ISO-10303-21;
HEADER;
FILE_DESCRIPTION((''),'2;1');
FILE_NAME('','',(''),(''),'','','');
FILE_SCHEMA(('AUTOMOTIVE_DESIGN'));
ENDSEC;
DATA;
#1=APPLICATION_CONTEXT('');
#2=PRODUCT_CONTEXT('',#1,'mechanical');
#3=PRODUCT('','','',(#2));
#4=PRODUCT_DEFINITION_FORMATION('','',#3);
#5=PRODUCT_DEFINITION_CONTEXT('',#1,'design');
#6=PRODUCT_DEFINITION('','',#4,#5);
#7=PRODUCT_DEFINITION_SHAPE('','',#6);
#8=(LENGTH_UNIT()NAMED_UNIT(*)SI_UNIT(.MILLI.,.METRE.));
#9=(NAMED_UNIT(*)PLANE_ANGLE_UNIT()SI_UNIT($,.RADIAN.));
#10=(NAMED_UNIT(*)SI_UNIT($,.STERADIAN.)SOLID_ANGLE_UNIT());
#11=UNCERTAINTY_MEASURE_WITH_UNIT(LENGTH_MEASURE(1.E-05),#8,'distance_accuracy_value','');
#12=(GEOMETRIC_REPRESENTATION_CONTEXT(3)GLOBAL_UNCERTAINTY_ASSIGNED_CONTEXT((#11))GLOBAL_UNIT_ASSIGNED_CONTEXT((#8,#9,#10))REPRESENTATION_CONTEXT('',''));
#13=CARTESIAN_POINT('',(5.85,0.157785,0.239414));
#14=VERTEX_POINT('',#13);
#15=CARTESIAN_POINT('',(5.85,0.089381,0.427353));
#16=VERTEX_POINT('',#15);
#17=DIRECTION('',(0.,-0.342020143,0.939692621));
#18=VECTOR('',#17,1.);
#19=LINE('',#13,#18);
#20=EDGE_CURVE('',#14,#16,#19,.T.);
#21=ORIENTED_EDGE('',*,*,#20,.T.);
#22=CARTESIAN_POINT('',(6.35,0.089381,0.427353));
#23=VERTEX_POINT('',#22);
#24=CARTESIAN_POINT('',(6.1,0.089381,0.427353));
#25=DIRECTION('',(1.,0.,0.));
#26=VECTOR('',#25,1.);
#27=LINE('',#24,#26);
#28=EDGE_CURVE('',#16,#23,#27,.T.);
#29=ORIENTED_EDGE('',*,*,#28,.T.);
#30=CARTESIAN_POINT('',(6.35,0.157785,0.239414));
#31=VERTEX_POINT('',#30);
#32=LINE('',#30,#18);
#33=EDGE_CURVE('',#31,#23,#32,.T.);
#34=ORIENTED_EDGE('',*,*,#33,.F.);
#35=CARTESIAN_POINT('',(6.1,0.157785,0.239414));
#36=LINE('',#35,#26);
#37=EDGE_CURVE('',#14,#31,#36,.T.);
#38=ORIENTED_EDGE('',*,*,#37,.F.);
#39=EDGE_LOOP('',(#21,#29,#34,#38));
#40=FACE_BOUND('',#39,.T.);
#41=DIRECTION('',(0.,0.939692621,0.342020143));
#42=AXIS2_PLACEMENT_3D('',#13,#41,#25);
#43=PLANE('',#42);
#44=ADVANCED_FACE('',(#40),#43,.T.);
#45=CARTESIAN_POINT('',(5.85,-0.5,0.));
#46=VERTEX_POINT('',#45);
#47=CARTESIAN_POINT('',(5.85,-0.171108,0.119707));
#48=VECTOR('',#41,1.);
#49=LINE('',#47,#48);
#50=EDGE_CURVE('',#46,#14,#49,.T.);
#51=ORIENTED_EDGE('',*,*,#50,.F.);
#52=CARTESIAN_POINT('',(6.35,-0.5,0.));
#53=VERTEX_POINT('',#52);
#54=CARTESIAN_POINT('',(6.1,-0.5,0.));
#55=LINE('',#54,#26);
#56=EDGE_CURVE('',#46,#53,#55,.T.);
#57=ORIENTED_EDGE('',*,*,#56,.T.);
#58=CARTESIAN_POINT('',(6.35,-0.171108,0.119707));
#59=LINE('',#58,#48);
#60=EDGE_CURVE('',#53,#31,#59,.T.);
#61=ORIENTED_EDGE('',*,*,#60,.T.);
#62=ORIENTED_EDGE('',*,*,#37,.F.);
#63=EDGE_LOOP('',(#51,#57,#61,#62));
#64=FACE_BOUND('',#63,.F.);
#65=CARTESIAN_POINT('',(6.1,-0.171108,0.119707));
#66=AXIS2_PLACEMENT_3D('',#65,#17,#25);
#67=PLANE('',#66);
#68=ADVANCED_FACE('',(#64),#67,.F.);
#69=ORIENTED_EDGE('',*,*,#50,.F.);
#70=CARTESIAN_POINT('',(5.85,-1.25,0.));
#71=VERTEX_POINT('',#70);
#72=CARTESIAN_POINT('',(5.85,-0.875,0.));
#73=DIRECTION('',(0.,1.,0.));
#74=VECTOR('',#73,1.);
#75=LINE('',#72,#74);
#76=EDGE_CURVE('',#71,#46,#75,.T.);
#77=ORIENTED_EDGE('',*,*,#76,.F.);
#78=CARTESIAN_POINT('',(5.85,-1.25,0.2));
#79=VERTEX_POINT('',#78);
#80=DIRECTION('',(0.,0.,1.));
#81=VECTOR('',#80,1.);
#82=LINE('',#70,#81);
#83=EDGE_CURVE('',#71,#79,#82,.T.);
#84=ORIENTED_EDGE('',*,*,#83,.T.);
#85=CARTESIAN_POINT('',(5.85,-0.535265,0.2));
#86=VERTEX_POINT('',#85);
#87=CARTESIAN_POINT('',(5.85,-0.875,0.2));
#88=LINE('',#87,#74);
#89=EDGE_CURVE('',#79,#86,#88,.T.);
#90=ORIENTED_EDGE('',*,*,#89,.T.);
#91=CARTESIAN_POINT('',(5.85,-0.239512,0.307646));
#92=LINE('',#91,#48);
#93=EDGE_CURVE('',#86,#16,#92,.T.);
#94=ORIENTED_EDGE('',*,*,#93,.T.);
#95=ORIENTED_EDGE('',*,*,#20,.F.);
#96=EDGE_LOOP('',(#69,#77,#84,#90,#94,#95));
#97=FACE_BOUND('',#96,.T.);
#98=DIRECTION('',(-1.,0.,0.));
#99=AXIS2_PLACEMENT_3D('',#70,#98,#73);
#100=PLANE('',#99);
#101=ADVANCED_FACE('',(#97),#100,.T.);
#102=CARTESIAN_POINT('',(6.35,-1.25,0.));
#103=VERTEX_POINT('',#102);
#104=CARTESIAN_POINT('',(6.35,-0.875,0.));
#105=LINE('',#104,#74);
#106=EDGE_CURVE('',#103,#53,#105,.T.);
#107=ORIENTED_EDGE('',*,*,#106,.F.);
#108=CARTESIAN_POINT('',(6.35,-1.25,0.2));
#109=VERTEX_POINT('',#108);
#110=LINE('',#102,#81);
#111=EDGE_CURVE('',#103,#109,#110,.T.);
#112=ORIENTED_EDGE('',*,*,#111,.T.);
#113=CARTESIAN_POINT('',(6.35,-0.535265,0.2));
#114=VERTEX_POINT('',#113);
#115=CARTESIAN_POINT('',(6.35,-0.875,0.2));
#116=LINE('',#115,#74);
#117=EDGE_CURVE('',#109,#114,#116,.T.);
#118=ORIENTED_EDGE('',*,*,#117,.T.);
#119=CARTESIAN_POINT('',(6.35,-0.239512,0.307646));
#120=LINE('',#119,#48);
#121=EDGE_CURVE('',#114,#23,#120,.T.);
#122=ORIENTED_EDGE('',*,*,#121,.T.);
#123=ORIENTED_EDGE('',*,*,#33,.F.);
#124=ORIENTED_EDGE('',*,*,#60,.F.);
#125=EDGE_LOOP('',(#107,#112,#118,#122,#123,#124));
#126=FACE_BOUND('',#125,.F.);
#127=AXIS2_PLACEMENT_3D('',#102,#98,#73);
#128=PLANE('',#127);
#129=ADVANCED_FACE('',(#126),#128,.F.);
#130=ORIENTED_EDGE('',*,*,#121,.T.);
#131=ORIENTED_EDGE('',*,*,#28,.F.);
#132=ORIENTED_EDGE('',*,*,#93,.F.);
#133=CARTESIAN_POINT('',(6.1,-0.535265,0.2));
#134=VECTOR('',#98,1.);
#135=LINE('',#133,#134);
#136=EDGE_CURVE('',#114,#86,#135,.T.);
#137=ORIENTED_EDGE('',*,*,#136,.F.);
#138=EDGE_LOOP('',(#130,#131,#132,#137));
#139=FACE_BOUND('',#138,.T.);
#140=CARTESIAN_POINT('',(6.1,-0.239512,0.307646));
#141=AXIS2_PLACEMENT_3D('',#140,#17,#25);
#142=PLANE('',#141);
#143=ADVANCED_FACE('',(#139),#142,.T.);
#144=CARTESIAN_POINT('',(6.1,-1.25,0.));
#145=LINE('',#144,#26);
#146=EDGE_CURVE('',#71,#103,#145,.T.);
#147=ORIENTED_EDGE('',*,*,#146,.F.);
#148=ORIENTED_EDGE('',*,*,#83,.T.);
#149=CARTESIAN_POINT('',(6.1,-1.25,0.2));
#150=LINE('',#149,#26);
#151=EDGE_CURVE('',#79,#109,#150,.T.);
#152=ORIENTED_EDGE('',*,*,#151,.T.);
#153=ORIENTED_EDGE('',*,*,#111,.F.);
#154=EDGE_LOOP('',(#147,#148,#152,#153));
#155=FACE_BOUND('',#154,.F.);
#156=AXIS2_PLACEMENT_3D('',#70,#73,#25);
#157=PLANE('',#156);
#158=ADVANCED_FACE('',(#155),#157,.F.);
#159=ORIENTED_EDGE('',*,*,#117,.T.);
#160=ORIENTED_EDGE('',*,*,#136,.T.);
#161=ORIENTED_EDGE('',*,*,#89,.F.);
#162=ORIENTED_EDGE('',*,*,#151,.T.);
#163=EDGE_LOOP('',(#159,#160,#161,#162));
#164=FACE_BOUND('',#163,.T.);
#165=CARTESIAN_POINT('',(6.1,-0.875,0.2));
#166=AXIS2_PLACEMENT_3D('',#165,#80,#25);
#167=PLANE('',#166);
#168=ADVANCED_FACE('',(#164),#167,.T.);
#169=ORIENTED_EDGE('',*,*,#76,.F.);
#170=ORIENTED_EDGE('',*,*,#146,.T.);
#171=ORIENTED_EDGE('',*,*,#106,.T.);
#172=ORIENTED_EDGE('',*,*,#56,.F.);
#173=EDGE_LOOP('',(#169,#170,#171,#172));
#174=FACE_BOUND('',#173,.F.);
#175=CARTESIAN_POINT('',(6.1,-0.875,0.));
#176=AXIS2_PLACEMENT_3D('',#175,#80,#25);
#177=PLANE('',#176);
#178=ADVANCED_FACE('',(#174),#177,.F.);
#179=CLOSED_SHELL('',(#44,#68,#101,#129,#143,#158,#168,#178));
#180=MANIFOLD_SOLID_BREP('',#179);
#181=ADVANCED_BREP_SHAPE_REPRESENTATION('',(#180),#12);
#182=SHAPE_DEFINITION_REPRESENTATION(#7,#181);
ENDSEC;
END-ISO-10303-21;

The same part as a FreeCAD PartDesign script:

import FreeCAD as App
import Part
import Sketcher
from FreeCAD import Vector
Q = App.Units.Quantity

doc = App.newDocument("Part")
params = doc.addObject("Spreadsheet::Sheet", "Params")
for row, (alias, value) in enumerate([
    ("sketch1_width", "0.5 mm"),
    ("sketch1_height", "0.75 mm"),
    ("pad1_length", "0.2 mm"),
    ("sketch2_width", "0.5 mm"),
    ("sketch2_height", "0.7 mm"),
    ("pad2_length", "0.2 mm"),
], start=1):
    params.set(f"A{row}", alias)
    params.set(f"B{row}", "=" + value)
    params.setAlias(f"B{row}", alias)

body = doc.addObject("PartDesign::Body", "Body")

# Sketch on XY plane
sketch1 = doc.addObject("Sketcher::SketchObject", "Sketch")
body.addObject(sketch1)
sketch1.AttachmentSupport = (doc.XY_Plane, [""])
sketch1.MapMode = "FlatFace"
sketch1.addGeometry([
    Part.LineSegment(Vector(0, -0.5, 0), Vector(0, -1.25, 0)),
    Part.LineSegment(Vector(0, -1.25, 0), Vector(0.5, -1.25, 0)),
    Part.LineSegment(Vector(0.5, -1.25, 0), Vector(0.5, -0.5, 0)),
    Part.LineSegment(Vector(0.5, -0.5, 0), Vector(0, -0.5, 0)),
], False)
sketch1.addConstraint([
    Sketcher.Constraint("Coincident", 0, 2, 1, 1),
    Sketcher.Constraint("Coincident", 1, 2, 2, 1),
    Sketcher.Constraint("Coincident", 2, 2, 3, 1),
    Sketcher.Constraint("Coincident", 3, 2, 0, 1),
    Sketcher.Constraint("Vertical", 0),
    Sketcher.Constraint("Horizontal", 1),
    Sketcher.Constraint("Vertical", 2),
    Sketcher.Constraint("Horizontal", 3),
    Sketcher.Constraint("PointOnObject", 0, 2, -2),
    Sketcher.Constraint("DistanceX", 1, 1, 1, 2, Q("0.5 mm")),
    Sketcher.Constraint("DistanceY", 0, 2, 0, 1, Q("0.75 mm")),
    Sketcher.Constraint("DistanceY", 2, 2, -1, 1, Q("0.5 mm")),
])
sketch1.setExpression("Constraints[9]", "Params.sketch1_width")
sketch1.setExpression("Constraints[10]", "Params.sketch1_height")
pad1 = doc.addObject("PartDesign::Pad", "Pad")
body.addObject(pad1)
pad1.Profile = sketch1
pad1.setExpression("Length", "Params.pad1_length")
body2 = doc.addObject("PartDesign::Body", "Body001")

# Sketch on XY plane
sketch2 = doc.addObject("Sketcher::SketchObject", "Sketch001")
body2.addObject(sketch2)
sketch2.AttachmentSupport = (doc.getObject("XY_Plane001"), [""])
sketch2.MapMode = "FlatFace"
sketch2.addGeometry([
    Part.LineSegment(Vector(0, 0.7, 0), Vector(0, 0, 0)),
    Part.LineSegment(Vector(0, 0, 0), Vector(0.5, 0, 0)),
    Part.LineSegment(Vector(0.5, 0, 0), Vector(0.5, 0.7, 0)),
    Part.LineSegment(Vector(0.5, 0.7, 0), Vector(0, 0.7, 0)),
], False)
sketch2.addConstraint([
    Sketcher.Constraint("Coincident", 0, 2, 1, 1),
    Sketcher.Constraint("Coincident", 1, 2, 2, 1),
    Sketcher.Constraint("Coincident", 2, 2, 3, 1),
    Sketcher.Constraint("Coincident", 3, 2, 0, 1),
    Sketcher.Constraint("Vertical", 0),
    Sketcher.Constraint("Horizontal", 1),
    Sketcher.Constraint("Vertical", 2),
    Sketcher.Constraint("Horizontal", 3),
    Sketcher.Constraint("Coincident", 0, 2, -1, 1),
    Sketcher.Constraint("DistanceX", 1, 1, 1, 2, Q("0.5 mm")),
    Sketcher.Constraint("DistanceY", 0, 2, 0, 1, Q("0.7 mm")),
])
sketch2.setExpression("Constraints[9]", "Params.sketch2_width")
sketch2.setExpression("Constraints[10]", "Params.sketch2_height")
pad2 = doc.addObject("PartDesign::Pad", "Pad001")
body2.addObject(pad2)
pad2.Profile = sketch2
pad2.setExpression("Length", "Params.pad2_length")
body3 = doc.addObject("PartDesign::Body", "Body002")
doc.recompute()

body2.Placement = App.Placement(Vector(0, -0.5, 0), App.Rotation(Vector(1, 0, 0), 20))
boolean = doc.addObject("PartDesign::Boolean", "Boolean")
body3.addObject(boolean)
boolean.Type = "Fuse"
boolean.addObjects([body2])
doc.recompute()

boolean2 = doc.addObject("PartDesign::Boolean", "Boolean001")
body3.addObject(boolean2)
boolean2.Type = "Fuse"
boolean2.addObjects([body])
body4 = doc.addObject("PartDesign::Body", "Body003")
doc.recompute()

body3.Placement = App.Placement(Vector(5.85, 0, 0), App.Rotation(Vector(0, 0, 1), 0))
boolean3 = doc.addObject("PartDesign::Boolean", "Boolean002")
body4.addObject(boolean3)
boolean3.Type = "Fuse"
boolean3.addObjects([body3])

doc.recompute()
